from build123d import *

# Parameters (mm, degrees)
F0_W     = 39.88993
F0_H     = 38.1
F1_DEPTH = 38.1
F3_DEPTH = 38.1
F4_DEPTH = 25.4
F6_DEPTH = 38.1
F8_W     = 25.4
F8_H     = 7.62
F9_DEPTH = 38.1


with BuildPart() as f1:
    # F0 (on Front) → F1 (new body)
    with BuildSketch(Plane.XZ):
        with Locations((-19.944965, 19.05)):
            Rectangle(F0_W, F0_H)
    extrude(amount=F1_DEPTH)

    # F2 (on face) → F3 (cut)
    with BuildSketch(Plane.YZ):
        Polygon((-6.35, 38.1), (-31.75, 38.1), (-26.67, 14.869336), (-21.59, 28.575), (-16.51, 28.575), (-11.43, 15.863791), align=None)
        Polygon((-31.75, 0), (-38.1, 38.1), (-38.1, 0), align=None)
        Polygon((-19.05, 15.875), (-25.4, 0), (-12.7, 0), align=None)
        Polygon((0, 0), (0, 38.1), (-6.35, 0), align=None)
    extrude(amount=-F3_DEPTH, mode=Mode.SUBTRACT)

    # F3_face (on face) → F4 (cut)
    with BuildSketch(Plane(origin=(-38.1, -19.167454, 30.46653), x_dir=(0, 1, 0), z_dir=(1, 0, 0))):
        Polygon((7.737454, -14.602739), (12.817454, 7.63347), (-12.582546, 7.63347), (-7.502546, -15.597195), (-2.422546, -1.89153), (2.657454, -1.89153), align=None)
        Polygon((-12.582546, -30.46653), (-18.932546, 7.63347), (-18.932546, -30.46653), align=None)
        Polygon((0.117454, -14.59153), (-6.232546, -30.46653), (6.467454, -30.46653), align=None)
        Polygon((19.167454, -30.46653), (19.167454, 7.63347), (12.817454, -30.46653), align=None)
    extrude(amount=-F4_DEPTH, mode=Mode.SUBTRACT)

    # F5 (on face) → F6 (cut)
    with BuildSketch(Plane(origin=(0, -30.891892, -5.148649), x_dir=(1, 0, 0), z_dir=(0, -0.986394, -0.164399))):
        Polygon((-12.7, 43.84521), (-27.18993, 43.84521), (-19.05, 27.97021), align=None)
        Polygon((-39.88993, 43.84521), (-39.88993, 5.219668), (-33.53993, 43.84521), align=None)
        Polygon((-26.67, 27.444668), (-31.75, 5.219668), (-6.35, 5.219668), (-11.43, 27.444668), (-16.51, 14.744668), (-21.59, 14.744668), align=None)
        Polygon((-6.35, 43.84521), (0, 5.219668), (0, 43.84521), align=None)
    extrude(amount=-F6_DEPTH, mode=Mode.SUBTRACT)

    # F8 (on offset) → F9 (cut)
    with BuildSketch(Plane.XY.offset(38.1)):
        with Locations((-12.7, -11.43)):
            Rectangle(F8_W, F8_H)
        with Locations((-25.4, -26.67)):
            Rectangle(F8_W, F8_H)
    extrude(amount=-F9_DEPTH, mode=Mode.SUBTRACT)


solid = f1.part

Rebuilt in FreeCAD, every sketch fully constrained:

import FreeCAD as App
import Part
import Sketcher
from FreeCAD import Vector
Q = App.Units.Quantity

doc = App.newDocument("Part")
body = doc.addObject("PartDesign::Body", "Body")

sketch1 = body.newObject("Sketcher::SketchObject", "Sketch")
sketch1.AttachmentSupport = (doc.getObject("XZ_Plane"), [""])
sketch1.MapMode = "FlatFace"
sketch1.addGeometry([
    Part.LineSegment(Vector(-40, 38, 0), Vector(-40, 0, 0)),
    Part.LineSegment(Vector(-40, 0, 0), Vector(0, 0, 0)),
    Part.LineSegment(Vector(0, 0, 0), Vector(0, 38, 0)),
    Part.LineSegment(Vector(0, 38, 0), Vector(-40, 38, 0)),
], False)
sketch1.addConstraint([
    Sketcher.Constraint("Coincident", 0, 2, 1, 1),
    Sketcher.Constraint("Coincident", 1, 2, 2, 1),
    Sketcher.Constraint("Coincident", 2, 2, 3, 1),
    Sketcher.Constraint("Coincident", 3, 2, 0, 1),
    Sketcher.Constraint("Vertical", 0),
    Sketcher.Constraint("Horizontal", 1),
    Sketcher.Constraint("Vertical", 2),
    Sketcher.Constraint("Horizontal", 3),
    Sketcher.Constraint("Coincident", 1, 2, -1, 1),
    Sketcher.Constraint("DistanceY", 0, 2, 0, 1, Q("1.5 in")),
    Sketcher.Constraint("DistanceX", 1, 1, 1, 2, Q("39.88993 mm")),
])
pad1 = body.newObject("PartDesign::Pad", "Pad")
pad1.Profile = sketch1
pad1.Length = Q("1.5 in")

sketch2 = body.newObject("Sketcher::SketchObject", "Sketch001")
sketch2.AttachmentSupport = (doc.getObject("YZ_Plane"), [""])
sketch2.MapMode = "FlatFace"
sketch2.addGeometry([
    Part.LineSegment(Vector(-6, 38, 0), Vector(-32, 38, 0)),
    Part.LineSegment(Vector(-32, 38, 0), Vector(-27, 15, 0)),
    Part.LineSegment(Vector(-27, 15, 0), Vector(-22, 29, 0)),
    Part.LineSegment(Vector(-22, 29, 0), Vector(-17, 29, 0)),
    Part.LineSegment(Vector(-17, 29, 0), Vector(-11, 16, 0)),
    Part.LineSegment(Vector(-11, 16, 0), Vector(-6, 38, 0)),
    Part.LineSegment(Vector(-32, 0, 0), Vector(-38, 38, 0)),
    Part.LineSegment(Vector(-38, 38, 0), Vector(-38, 0, 0)),
    Part.LineSegment(Vector(-38, 0, 0), Vector(-32, 0, 0)),
    Part.LineSegment(Vector(-19, 16, 0), Vector(-25, 0, 0)),
    Part.LineSegment(Vector(-25, 0, 0), Vector(-13, 0, 0)),
    Part.LineSegment(Vector(-13, 0, 0), Vector(-19, 16, 0)),
    Part.LineSegment(Vector(0, 0, 0), Vector(0, 38, 0)),
    Part.LineSegment(Vector(0, 38, 0), Vector(-6, 0, 0)),
    Part.LineSegment(Vector(-6, 0, 0), Vector(0, 0, 0)),
], False)
sketch2.addConstraint([
    Sketcher.Constraint("Coincident", 0, 2, 1, 1),
    Sketcher.Constraint("Coincident", 1, 2, 2, 1),
    Sketcher.Constraint("Coincident", 2, 2, 3, 1),
    Sketcher.Constraint("Coincident", 3, 2, 4, 1),
    Sketcher.Constraint("Coincident", 4, 2, 5, 1),
    Sketcher.Constraint("Coincident", 5, 2, 0, 1),
    Sketcher.Constraint("Coincident", 6, 2, 7, 1),
    Sketcher.Constraint("Coincident", 7, 2, 8, 1),
    Sketcher.Constraint("Coincident", 8, 2, 6, 1),
    Sketcher.Constraint("Coincident", 9, 2, 10, 1),
    Sketcher.Constraint("Coincident", 10, 2, 11, 1),
    Sketcher.Constraint("Coincident", 11, 2, 9, 1),
    Sketcher.Constraint("Coincident", 12, 2, 13, 1),
    Sketcher.Constraint("Coincident", 13, 2, 14, 1),
    Sketcher.Constraint("Coincident", 14, 2, 12, 1),
    Sketcher.Constraint("Horizontal", 0),
    Sketcher.Constraint("Horizontal", 3),
    Sketcher.Constraint("Vertical", 7),
    Sketcher.Constraint("Horizontal", 8),
    Sketcher.Constraint("Horizontal", 10),
    Sketcher.Constraint("Vertical", 12),
    Sketcher.Constraint("Horizontal", 14),
    Sketcher.Constraint("Coincident", 14, 2, -1, 1),
    Sketcher.Constraint("PointOnObject", 7, 2, -1),
    Sketcher.Constraint("PointOnObject", 9, 2, -1),
    Sketcher.Constraint("Horizontal", 5, 2, 6, 2),
    Sketcher.Constraint("Horizontal", 6, 2, 12, 2),
    Sketcher.Constraint("Vertical", 0, 2, 8, 2),
    Sketcher.Constraint("Vertical", 5, 2, 13, 2),
    Sketcher.Constraint("Equal", 8, 14),
    Sketcher.Constraint("Equal", 9, 11),
    Sketcher.Constraint("DistanceX", 0, 2, 0, 1, Q("1 in")),
    Sketcher.Constraint("DistanceX", 3, 1, 3, 2, Q("0.2 in")),
    Sketcher.Constraint("DistanceX", 10, 1, 10, 2, Q("0.5 in")),
    Sketcher.Constraint("DistanceY", 7, 2, 7, 1, Q("1.5 in")),
    Sketcher.Constraint("DistanceX", 9, 2, -1, 1, Q("1 in")),
    Sketcher.Constraint("DistanceX", 7, 2, 10, 2, Q("1 in")),
    Sketcher.Constraint("DistanceX", 0, 2, 1, 2, Q("0.2 in")),
    Sketcher.Constraint("DistanceX", 0, 2, 2, 2, Q("0.4 in")),
    Sketcher.Constraint("DistanceX", 3, 2, 4, 2, Q("0.2 in")),
    Sketcher.Constraint("DistanceY", 11, 2, 2, 2, Q("0.5 in")),
    Sketcher.Constraint("DistanceY", -1, 1, 2, 2, Q("1.125 in")),
    Sketcher.Constraint("DistanceY", -1, 1, 4, 2, Q("15.863791 mm")),
    Sketcher.Constraint("Distance", 1, Q("23.779616 mm")),
])
pocket1 = body.newObject("PartDesign::Pocket", "Pocket")
pocket1.Profile = sketch2
pocket1.Length = Q("1.5 in")

sketch3 = body.newObject("Sketcher::SketchObject", "Sketch002")
sketch3.AttachmentSupport = (doc.getObject("YZ_Plane"), [""])
sketch3.MapMode = "FlatFace"
sketch3.AttachmentOffset = App.Placement(Vector(0, 0, -1.5 * 25.4), App.Rotation())
sketch3.addGeometry([
    Part.LineSegment(Vector(-11, 16, 0), Vector(-6, 38, 0)),
    Part.LineSegment(Vector(-6, 38, 0), Vector(-32, 38, 0)),
    Part.LineSegment(Vector(-32, 38, 0), Vector(-27, 15, 0)),
    Part.LineSegment(Vector(-27, 15, 0), Vector(-22, 29, 0)),
    Part.LineSegment(Vector(-22, 29, 0), Vector(-17, 29, 0)),
    Part.LineSegment(Vector(-17, 29, 0), Vector(-11, 16, 0)),
    Part.LineSegment(Vector(-32, 0, 0), Vector(-38, 38, 0)),
    Part.LineSegment(Vector(-38, 38, 0), Vector(-38, 0, 0)),
    Part.LineSegment(Vector(-38, 0, 0), Vector(-32, 0, 0)),
    Part.LineSegment(Vector(-19, 16, 0), Vector(-25, 0, 0)),
    Part.LineSegment(Vector(-25, 0, 0), Vector(-13, 0, 0)),
    Part.LineSegment(Vector(-13, 0, 0), Vector(-19, 16, 0)),
    Part.LineSegment(Vector(0, 0, 0), Vector(0, 38, 0)),
    Part.LineSegment(Vector(0, 38, 0), Vector(-6, 0, 0)),
    Part.LineSegment(Vector(-6, 0, 0), Vector(0, 0, 0)),
], False)
sketch3.addConstraint([
    Sketcher.Constraint("Coincident", 0, 2, 1, 1),
    Sketcher.Constraint("Coincident", 1, 2, 2, 1),
    Sketcher.Constraint("Coincident", 2, 2, 3, 1),
    Sketcher.Constraint("Coincident", 3, 2, 4, 1),
    Sketcher.Constraint("Coincident", 4, 2, 5, 1),
    Sketcher.Constraint("Coincident", 5, 2, 0, 1),
    Sketcher.Constraint("Coincident", 6, 2, 7, 1),
    Sketcher.Constraint("Coincident", 7, 2, 8, 1),
    Sketcher.Constraint("Coincident", 8, 2, 6, 1),
    Sketcher.Constraint("Coincident", 9, 2, 10, 1),
    Sketcher.Constraint("Coincident", 10, 2, 11, 1),
    Sketcher.Constraint("Coincident", 11, 2, 9, 1),
    Sketcher.Constraint("Coincident", 12, 2, 13, 1),
    Sketcher.Constraint("Coincident", 13, 2, 14, 1),
    Sketcher.Constraint("Coincident", 14, 2, 12, 1),
    Sketcher.Constraint("Horizontal", 1),
    Sketcher.Constraint("Horizontal", 4),
    Sketcher.Constraint("Vertical", 7),
    Sketcher.Constraint("Horizontal", 8),
    Sketcher.Constraint("Horizontal", 10),
    Sketcher.Constraint("Vertical", 12),
    Sketcher.Constraint("Horizontal", 14),
    Sketcher.Constraint("Coincident", 14, 2, -1, 1),
    Sketcher.Constraint("PointOnObject", 7, 2, -1),
    Sketcher.Constraint("PointOnObject", 9, 2, -1),
    Sketcher.Constraint("Horizontal", 1, 2, 6, 2),
    Sketcher.Constraint("Horizontal", 6, 2, 12, 2),
    Sketcher.Constraint("Vertical", 1, 2, 8, 2),
    Sketcher.Constraint("Vertical", 0, 2, 13, 2),
    Sketcher.Constraint("Equal", 8, 14),
    Sketcher.Constraint("Equal", 9, 11),
    Sketcher.Constraint("DistanceX", 1, 2, 1, 1, Q("1 in")),
    Sketcher.Constraint("DistanceX", 4, 1, 4, 2, Q("0.2 in")),
    Sketcher.Constraint("DistanceX", 10, 1, 10, 2, Q("0.5 in")),
    Sketcher.Constraint("DistanceY", 7, 2, 7, 1, Q("1.5 in")),
    Sketcher.Constraint("DistanceX", 9, 2, -1, 1, Q("1 in")),
    Sketcher.Constraint("DistanceX", 7, 2, 10, 2, Q("1 in")),
    Sketcher.Constraint("DistanceX", 1, 2, 2, 2, Q("0.2 in")),
    Sketcher.Constraint("DistanceX", 1, 2, 3, 2, Q("0.4 in")),
    Sketcher.Constraint("DistanceX", 4, 2, 5, 2, Q("0.2 in")),
    Sketcher.Constraint("DistanceY", 11, 2, 3, 2, Q("0.5 in")),
    Sketcher.Constraint("DistanceY", -1, 1, 3, 2, Q("1.125 in")),
    Sketcher.Constraint("DistanceY", -1, 1, 5, 2, Q("15.863791 mm")),
    Sketcher.Constraint("Distance", 2, Q("23.779617 mm")),
])
pocket2 = body.newObject("PartDesign::Pocket", "Pocket001")
pocket2.Profile = sketch3
pocket2.Length = Q("1 in")

sketch4 = body.newObject("Sketcher::SketchObject", "Sketch003")
sketch4.Placement = App.Placement(Vector(0, -30.891892, -5.148649), App.Rotation(Vector(1, 0, 0), Vector(0, -0.164398987, 0.986393924), Vector(0, -0.986393924, -0.164398987), "ZXY"))
sketch4.addGeometry([
    Part.LineSegment(Vector(-13, 44, 0), Vector(-27, 44, 0)),
    Part.LineSegment(Vector(-27, 44, 0), Vector(-19, 28, 0)),
    Part.LineSegment(Vector(-19, 28, 0), Vector(-13, 44, 0)),
    Part.LineSegment(Vector(-40, 44, 0), Vector(-40, 5, 0)),
    Part.LineSegment(Vector(-40, 5, 0), Vector(-34, 44, 0)),
    Part.LineSegment(Vector(-34, 44, 0), Vector(-40, 44, 0)),
    Part.LineSegment(Vector(-27, 27, 0), Vector(-32, 5, 0)),
    Part.LineSegment(Vector(-32, 5, 0), Vector(-6, 5, 0)),
    Part.LineSegment(Vector(-6, 5, 0), Vector(-11, 27, 0)),
    Part.LineSegment(Vector(-11, 27, 0), Vector(-17, 15, 0)),
    Part.LineSegment(Vector(-17, 15, 0), Vector(-22, 15, 0)),
    Part.LineSegment(Vector(-22, 15, 0), Vector(-27, 27, 0)),
    Part.LineSegment(Vector(-6, 44, 0), Vector(0, 5, 0)),
    Part.LineSegment(Vector(0, 5, 0), Vector(0, 44, 0)),
    Part.LineSegment(Vector(0, 44, 0), Vector(-6, 44, 0)),
], False)
sketch4.addConstraint([
    Sketcher.Constraint("Coincident", 0, 2, 1, 1),
    Sketcher.Constraint("Coincident", 1, 2, 2, 1),
    Sketcher.Constraint("Coincident", 2, 2, 0, 1),
    Sketcher.Constraint("Coincident", 3, 2, 4, 1),
    Sketcher.Constraint("Coincident", 4, 2, 5, 1),
    Sketcher.Constraint("Coincident", 5, 2, 3, 1),
    Sketcher.Constraint("Coincident", 6, 2, 7, 1),
    Sketcher.Constraint("Coincident", 7, 2, 8, 1),
    Sketcher.Constraint("Coincident", 8, 2, 9, 1),
    Sketcher.Constraint("Coincident", 9, 2, 10, 1),
    Sketcher.Constraint("Coincident", 10, 2, 11, 1),
    Sketcher.Constraint("Coincident", 11, 2, 6, 1),
    Sketcher.Constraint("Coincident", 12, 2, 13, 1),
    Sketcher.Constraint("Coincident", 13, 2, 14, 1),
    Sketcher.Constraint("Coincident", 14, 2, 12, 1),
    Sketcher.Constraint("Horizontal", 0),
    Sketcher.Constraint("Vertical", 3),
    Sketcher.Constraint("Horizontal", 5),
    Sketcher.Constraint("Horizontal", 7),
    Sketcher.Constraint("Horizontal", 10),
    Sketcher.Constraint("Vertical", 13),
    Sketcher.Constraint("Horizontal", 14),
    Sketcher.Constraint("PointOnObject", 12, 2, -2),
    Sketcher.Constraint("Parallel", 2, 9),
    Sketcher.Constraint("Horizontal", 2, 2, 4, 2),
    Sketcher.Constraint("Horizontal", 3, 2, 6, 2),
    Sketcher.Constraint("Horizontal", 8, 2, 11, 2),
    Sketcher.Constraint("Horizontal", 7, 2, 12, 2),
    Sketcher.Constraint("Horizontal", 5, 2, 13, 2),
    Sketcher.Constraint("Vertical", 7, 2, 14, 2),
    Sketcher.Constraint("Equal", 5, 14),
    Sketcher.Constraint("Equal", 6, 8),
    Sketcher.Constraint("Equal", 9, 11),
    Sketcher.Constraint("DistanceX", 7, 1, 7, 2, Q("1 in")),
    Sketcher.Constraint("DistanceX", 10, 2, 10, 1, Q("0.2 in")),
    Sketcher.Constraint("DistanceX", 5, 2, 5, 1, Q("0.25 in")),
    Sketcher.Constraint("DistanceX", 2, 2, -1, 1, Q("0.5 in")),
    Sketcher.Constraint("DistanceX", 3, 2, 0, 2, Q("0.5 in")),
    Sketcher.Constraint("DistanceX", 6, 2, 1, 2, Q("0.5 in")),
    Sketcher.Constraint("DistanceX", 1, 2, 8, 2, Q("0.3 in")),
    Sketcher.Constraint("DistanceY", 9, 2, 8, 2, Q("0.5 in")),
    Sketcher.Constraint("DistanceY", 7, 2, 8, 2, Q("0.875 in")),
    Sketcher.Constraint("DistanceX", 0, 2, 0, 1, Q("14.48993 mm")),
    Sketcher.Constraint("Distance", 4, Q("39.144029 mm")),
    Sketcher.Constraint("DistanceY", -1, 1, 0, 2, Q("43.84521 mm")),
])
pocket3 = body.newObject("PartDesign::Pocket", "Pocket002")
pocket3.Profile = sketch4
pocket3.Length = Q("1.5 in")

sketch5 = body.newObject("Sketcher::SketchObject", "Sketch004")
sketch5.AttachmentSupport = (doc.getObject("XY_Plane"), [""])
sketch5.MapMode = "FlatFace"
sketch5.AttachmentOffset = App.Placement(Vector(0, 0, 1.5 * 25.4), App.Rotation())
sketch5.addGeometry([
    Part.LineSegment(Vector(-25, -8, 0), Vector(-25, -15, 0)),
    Part.LineSegment(Vector(-25, -15, 0), Vector(0, -15, 0)),
    Part.LineSegment(Vector(0, -15, 0), Vector(0, -8, 0)),
    Part.LineSegment(Vector(0, -8, 0), Vector(-25, -8, 0)),
    Part.LineSegment(Vector(-38, -23, 0), Vector(-38, -30, 0)),
    Part.LineSegment(Vector(-38, -30, 0), Vector(-13, -30, 0)),
    Part.LineSegment(Vector(-13, -30, 0), Vector(-13, -23, 0)),
    Part.LineSegment(Vector(-13, -23, 0), Vector(-38, -23, 0)),
], False)
sketch5.addConstraint([
    Sketcher.Constraint("Coincident", 0, 2, 1, 1),
    Sketcher.Constraint("Coincident", 1, 2, 2, 1),
    Sketcher.Constraint("Coincident", 2, 2, 3, 1),
    Sketcher.Constraint("Coincident", 3, 2, 0, 1),
    Sketcher.Constraint("Coincident", 4, 2, 5, 1),
    Sketcher.Constraint("Coincident", 5, 2, 6, 1),
    Sketcher.Constraint("Coincident", 6, 2, 7, 1),
    Sketcher.Constraint("Coincident", 7, 2, 4, 1),
    Sketcher.Constraint("Vertical", 0),
    Sketcher.Constraint("Horizontal", 1),
    Sketcher.Constraint("Vertical", 2),
    Sketcher.Constraint("Horizontal", 3),
    Sketcher.Constraint("Vertical", 4),
    Sketcher.Constraint("Horizontal", 5),
    Sketcher.Constraint("Vertical", 6),
    Sketcher.Constraint("Horizontal", 7),
    Sketcher.Constraint("PointOnObject", 1, 2, -2),
    Sketcher.Constraint("Equal", 3, 5),
    Sketcher.Constraint("Equal", 2, 4),
    Sketcher.Constraint("DistanceX", 1, 1, 1, 2, Q("1 in")),
    Sketcher.Constraint("DistanceY", 0, 2, 0, 1, Q("0.3 in")),
    Sketcher.Constraint("DistanceY", 0, 2, -1, 1, Q("0.6 in")),
    Sketcher.Constraint("DistanceX", 4, 2, -1, 1, Q("1.5 in")),
    Sketcher.Constraint("DistanceY", 4, 2, -1, 1, Q("1.2 in")),
])
pocket4 = body.newObject("PartDesign::Pocket", "Pocket003")
pocket4.Profile = sketch5
pocket4.Length = Q("1.5 in")

doc.recompute()
